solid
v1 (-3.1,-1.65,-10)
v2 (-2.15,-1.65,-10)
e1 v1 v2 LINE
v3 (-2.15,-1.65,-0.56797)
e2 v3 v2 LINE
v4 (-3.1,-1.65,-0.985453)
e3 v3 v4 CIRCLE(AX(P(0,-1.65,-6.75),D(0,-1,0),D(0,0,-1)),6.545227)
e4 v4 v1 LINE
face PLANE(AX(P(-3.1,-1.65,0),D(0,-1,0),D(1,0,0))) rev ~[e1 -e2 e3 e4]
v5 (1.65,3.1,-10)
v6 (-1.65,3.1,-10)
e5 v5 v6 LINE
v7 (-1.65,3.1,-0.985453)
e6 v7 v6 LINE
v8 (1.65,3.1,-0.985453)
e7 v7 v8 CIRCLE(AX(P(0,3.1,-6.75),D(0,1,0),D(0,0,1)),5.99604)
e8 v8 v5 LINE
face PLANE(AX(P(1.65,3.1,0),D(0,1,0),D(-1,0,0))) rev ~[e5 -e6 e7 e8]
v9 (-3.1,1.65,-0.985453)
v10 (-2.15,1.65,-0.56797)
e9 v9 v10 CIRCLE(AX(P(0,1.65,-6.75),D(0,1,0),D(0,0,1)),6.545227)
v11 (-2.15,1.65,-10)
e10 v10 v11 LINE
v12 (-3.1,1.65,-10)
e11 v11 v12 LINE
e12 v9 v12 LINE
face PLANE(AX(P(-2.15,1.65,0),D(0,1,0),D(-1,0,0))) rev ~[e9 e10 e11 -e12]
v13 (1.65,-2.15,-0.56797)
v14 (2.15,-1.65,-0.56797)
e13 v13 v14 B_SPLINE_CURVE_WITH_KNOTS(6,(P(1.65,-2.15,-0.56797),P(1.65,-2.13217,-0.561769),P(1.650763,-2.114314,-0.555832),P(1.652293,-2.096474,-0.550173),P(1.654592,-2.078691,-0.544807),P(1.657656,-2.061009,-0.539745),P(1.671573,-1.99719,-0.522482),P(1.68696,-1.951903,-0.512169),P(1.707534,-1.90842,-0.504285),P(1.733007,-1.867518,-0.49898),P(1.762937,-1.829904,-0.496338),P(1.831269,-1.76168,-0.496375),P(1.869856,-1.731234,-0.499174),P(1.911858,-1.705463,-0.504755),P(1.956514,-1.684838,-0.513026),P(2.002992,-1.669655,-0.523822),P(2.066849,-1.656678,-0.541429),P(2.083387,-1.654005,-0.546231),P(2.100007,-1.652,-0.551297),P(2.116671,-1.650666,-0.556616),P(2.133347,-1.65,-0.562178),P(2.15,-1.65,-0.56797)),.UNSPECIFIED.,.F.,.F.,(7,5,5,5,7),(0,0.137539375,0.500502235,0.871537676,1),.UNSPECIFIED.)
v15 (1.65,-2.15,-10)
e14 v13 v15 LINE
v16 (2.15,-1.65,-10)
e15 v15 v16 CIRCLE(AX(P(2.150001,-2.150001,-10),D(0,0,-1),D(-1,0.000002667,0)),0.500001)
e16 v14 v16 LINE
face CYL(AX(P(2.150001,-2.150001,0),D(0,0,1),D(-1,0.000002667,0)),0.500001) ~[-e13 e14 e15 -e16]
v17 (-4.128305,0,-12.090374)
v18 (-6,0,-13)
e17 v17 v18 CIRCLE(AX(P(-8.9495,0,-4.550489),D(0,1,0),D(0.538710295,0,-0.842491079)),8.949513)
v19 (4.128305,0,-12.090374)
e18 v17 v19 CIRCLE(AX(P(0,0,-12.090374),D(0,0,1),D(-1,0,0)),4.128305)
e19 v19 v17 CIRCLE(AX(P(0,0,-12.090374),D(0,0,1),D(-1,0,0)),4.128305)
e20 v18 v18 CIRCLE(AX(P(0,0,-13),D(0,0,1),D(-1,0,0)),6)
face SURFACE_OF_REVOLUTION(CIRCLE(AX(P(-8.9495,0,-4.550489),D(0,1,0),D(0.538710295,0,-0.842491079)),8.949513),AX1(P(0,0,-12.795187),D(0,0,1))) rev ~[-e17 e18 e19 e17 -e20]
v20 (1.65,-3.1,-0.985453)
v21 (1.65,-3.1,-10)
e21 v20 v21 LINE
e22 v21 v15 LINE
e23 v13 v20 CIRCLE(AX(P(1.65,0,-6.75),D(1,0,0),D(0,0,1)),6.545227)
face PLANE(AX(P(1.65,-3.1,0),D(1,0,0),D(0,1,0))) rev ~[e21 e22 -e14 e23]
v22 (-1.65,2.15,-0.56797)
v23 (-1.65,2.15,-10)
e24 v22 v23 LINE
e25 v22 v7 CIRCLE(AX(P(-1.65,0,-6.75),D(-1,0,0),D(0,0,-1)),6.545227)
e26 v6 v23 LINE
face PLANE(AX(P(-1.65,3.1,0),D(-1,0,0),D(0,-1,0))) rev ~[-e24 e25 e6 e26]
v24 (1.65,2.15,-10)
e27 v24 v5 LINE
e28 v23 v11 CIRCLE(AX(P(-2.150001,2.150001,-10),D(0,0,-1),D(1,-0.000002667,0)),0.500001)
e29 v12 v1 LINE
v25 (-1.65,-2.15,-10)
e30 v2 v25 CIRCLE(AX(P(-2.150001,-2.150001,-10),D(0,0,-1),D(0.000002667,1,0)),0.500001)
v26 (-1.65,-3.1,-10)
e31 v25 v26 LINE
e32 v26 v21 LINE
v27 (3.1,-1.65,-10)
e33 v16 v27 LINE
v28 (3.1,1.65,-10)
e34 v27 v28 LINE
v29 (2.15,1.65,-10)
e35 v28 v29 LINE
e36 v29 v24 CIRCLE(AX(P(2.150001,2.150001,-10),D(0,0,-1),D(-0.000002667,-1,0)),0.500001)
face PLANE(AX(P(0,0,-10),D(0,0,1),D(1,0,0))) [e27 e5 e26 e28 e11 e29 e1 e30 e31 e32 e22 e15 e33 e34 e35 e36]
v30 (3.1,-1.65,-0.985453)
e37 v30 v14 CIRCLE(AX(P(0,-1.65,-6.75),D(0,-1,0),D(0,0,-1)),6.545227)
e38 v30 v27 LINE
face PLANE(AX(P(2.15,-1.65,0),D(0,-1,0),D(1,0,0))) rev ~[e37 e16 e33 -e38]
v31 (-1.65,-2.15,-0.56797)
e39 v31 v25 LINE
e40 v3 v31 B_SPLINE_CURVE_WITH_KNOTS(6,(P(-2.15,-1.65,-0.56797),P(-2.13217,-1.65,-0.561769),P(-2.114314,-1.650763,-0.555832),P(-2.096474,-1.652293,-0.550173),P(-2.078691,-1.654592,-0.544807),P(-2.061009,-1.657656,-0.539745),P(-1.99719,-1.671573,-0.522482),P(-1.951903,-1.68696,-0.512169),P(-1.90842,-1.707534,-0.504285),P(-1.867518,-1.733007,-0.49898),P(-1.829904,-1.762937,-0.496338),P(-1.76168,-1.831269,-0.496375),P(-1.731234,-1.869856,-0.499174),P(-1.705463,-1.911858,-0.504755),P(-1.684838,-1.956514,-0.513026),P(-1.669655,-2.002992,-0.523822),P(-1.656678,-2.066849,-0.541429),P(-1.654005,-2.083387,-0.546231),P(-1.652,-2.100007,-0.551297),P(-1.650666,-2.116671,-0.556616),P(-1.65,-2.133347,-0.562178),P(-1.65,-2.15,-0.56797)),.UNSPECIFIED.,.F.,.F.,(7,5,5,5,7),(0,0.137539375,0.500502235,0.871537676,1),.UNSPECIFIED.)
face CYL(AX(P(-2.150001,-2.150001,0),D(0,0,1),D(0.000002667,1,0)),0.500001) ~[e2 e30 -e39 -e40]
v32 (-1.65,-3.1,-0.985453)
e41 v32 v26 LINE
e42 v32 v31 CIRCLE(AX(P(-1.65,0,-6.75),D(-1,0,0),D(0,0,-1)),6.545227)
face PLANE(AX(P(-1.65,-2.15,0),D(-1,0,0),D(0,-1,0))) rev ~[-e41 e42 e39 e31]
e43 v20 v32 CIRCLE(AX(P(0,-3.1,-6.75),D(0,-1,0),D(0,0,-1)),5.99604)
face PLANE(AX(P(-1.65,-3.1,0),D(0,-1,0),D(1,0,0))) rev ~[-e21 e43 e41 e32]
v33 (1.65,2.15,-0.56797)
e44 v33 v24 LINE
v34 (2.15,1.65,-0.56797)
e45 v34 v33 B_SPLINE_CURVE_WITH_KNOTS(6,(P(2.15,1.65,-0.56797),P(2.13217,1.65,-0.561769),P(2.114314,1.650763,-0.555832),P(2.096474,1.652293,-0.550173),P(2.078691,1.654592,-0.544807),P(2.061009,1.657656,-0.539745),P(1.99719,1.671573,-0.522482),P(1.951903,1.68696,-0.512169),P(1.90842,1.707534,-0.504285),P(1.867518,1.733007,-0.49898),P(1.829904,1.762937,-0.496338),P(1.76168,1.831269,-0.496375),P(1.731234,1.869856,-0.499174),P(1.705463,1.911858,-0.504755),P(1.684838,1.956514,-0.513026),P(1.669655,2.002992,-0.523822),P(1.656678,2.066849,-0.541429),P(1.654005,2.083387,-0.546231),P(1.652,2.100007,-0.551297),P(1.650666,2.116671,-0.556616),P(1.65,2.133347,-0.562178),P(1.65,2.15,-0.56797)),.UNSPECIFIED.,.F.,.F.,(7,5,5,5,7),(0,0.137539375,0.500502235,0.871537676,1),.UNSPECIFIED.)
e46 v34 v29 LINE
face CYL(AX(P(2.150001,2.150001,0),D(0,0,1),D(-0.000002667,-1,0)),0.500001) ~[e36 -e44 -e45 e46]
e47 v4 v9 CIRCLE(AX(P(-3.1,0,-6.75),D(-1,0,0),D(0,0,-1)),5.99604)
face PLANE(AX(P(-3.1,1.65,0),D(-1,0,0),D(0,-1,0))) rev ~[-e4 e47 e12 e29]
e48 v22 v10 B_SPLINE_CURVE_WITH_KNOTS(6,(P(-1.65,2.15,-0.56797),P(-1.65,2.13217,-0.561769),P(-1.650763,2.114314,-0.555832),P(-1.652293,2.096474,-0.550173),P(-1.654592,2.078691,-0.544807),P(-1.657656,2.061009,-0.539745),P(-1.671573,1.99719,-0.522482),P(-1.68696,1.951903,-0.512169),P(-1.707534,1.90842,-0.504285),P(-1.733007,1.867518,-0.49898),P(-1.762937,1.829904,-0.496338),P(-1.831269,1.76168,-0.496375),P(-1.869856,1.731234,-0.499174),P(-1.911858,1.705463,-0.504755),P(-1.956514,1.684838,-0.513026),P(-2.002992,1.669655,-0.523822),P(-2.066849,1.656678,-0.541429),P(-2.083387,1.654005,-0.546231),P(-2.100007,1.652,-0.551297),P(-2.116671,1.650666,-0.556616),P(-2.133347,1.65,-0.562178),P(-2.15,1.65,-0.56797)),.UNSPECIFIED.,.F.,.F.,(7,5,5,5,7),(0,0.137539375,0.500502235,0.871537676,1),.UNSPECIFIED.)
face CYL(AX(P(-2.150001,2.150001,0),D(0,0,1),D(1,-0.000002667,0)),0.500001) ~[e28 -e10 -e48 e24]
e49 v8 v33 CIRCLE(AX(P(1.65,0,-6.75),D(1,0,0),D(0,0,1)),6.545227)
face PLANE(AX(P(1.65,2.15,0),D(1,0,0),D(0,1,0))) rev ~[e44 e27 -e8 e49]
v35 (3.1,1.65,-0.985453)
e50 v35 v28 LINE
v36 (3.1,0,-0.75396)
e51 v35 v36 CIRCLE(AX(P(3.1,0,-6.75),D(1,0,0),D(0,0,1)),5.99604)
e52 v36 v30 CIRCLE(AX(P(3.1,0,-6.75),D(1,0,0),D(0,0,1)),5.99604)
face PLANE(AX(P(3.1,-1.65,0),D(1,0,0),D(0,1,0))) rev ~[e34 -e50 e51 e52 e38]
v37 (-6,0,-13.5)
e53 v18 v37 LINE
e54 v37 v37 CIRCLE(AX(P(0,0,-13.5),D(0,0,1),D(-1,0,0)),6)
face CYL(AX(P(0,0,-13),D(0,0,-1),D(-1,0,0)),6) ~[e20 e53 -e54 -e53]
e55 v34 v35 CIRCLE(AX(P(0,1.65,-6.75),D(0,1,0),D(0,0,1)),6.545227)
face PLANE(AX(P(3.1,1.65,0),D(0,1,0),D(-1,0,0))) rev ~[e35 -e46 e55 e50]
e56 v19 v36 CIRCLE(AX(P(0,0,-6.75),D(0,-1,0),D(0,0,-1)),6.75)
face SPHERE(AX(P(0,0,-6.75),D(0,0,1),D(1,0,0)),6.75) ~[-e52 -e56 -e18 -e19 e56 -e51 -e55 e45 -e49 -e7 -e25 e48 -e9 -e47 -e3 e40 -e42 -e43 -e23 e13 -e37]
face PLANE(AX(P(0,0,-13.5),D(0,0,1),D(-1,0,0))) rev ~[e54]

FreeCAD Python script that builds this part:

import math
import FreeCAD as App
import Part
import Sketcher
from FreeCAD import Vector
Q = App.Units.Quantity

doc = App.newDocument("Part")
params = doc.addObject("Spreadsheet::Sheet", "Params")
for row, (alias, value) in enumerate([
    ("sketch1_radius", "6.75 mm"),
    ("revolution_angle", "360 deg"),
    ("sketch2_radius", "0.500001 mm"),
    ("sketch2_width", "3.3 mm"),
    ("sketch2_width2", "0.95 mm"),
    ("pocket1_length", "10 mm"),
    ("sketch3_width", "6 mm"),
    ("sketch3_height", "0.5 mm"),
    ("revolution2_angle", "360 deg"),
], start=1):
    params.set(f"A{row}", alias)
    params.set(f"B{row}", "=" + value)
    params.setAlias(f"B{row}", alias)

body = doc.addObject("PartDesign::Body", "Body")

# Sketch on XZ plane
sketch1 = body.newObject("Sketcher::SketchObject", "Sketch")
sketch1.AttachmentSupport = (doc.getObject("XZ_Plane"), [""])
sketch1.MapMode = "FlatFace"
sketch1.addGeometry(Part.LineSegment(Vector(0, 0, 0), Vector(0, -13.5, 0)), False)
sketch1.addGeometry(Part.ArcOfCircle(Part.Circle(Vector(0, -6.75, 0), Vector(0, 0, 1), 6.75), math.radians(-90), math.radians(90)), False)
sketch1.addConstraint(Sketcher.Constraint("Coincident", 0, 1, 1, 2))
sketch1.addConstraint(Sketcher.Constraint("Coincident", 1, 1, 0, 2))
sketch1.addConstraint(Sketcher.Constraint("Vertical", 0))
sketch1.addConstraint(Sketcher.Constraint("Coincident", 0, 1, -1, 1))
sketch1.addConstraint(Sketcher.Constraint("PointOnObject", 1, 3, -2))
sketch1.addConstraint(Sketcher.Constraint("Radius", 1, Q("6.75 mm")))
sketch1.setExpression("Constraints[5]", "Params.sketch1_radius")
revolution = body.newObject("PartDesign::Revolution", "Revolution")
revolution.Profile = sketch1
revolution.ReferenceAxis = (sketch1, ["V_Axis"])
revolution.setExpression("Angle", "Params.revolution_angle")

# Sketch on XY plane
sketch2 = body.newObject("Sketcher::SketchObject", "Sketch001")
sketch2.AttachmentSupport = (doc.getObject("XY_Plane"), [""])
sketch2.MapMode = "FlatFace"
sketch2.addGeometry(Part.LineSegment(Vector(-3.1, 1.65, 0), Vector(-3.1, -1.65, 0)), False)
sketch2.addGeometry(Part.LineSegment(Vector(-3.1, -1.65, 0), Vector(-2.15, -1.65, 0)), False)
sketch2.addGeometry(Part.ArcOfCircle(Part.Circle(Vector(-2.150001, -2.150001, 0), Vector(0, 0, 1), 0.500001), math.radians(0.000153), math.radians(89.999847)), False)
sketch2.addGeometry(Part.LineSegment(Vector(-1.65, -2.15, 0), Vector(-1.65, -3.1, 0)), False)
sketch2.addGeometry(Part.LineSegment(Vector(-1.65, -3.1, 0), Vector(1.65, -3.1, 0)), False)
sketch2.addGeometry(Part.LineSegment(Vector(1.65, -3.1, 0), Vector(1.65, -2.15, 0)), False)
sketch2.addGeometry(Part.ArcOfCircle(Part.Circle(Vector(2.150001, -2.150001, 0), Vector(0, 0, 1), 0.500001), math.radians(90.000153), math.radians(179.999847)), False)
sketch2.addGeometry(Part.LineSegment(Vector(2.15, -1.65, 0), Vector(3.1, -1.65, 0)), False)
sketch2.addGeometry(Part.LineSegment(Vector(3.1, -1.65, 0), Vector(3.1, 1.65, 0)), False)
sketch2.addGeometry(Part.LineSegment(Vector(3.1, 1.65, 0), Vector(2.15, 1.65, 0)), False)
sketch2.addGeometry(Part.ArcOfCircle(Part.Circle(Vector(2.150001, 2.150001, 0), Vector(0, 0, 1), 0.500001), math.radians(-179.999847), math.radians(-90.000153)), False)
sketch2.addGeometry(Part.LineSegment(Vector(1.65, 2.15, 0), Vector(1.65, 3.1, 0)), False)
sketch2.addGeometry(Part.LineSegment(Vector(1.65, 3.1, 0), Vector(-1.65, 3.1, 0)), False)
sketch2.addGeometry(Part.LineSegment(Vector(-1.65, 3.1, 0), Vector(-1.65, 2.15, 0)), False)
sketch2.addGeometry(Part.ArcOfCircle(Part.Circle(Vector(-2.150001, 2.150001, 0), Vector(0, 0, 1), 0.500001), math.radians(-89.999847), math.radians(-0.000153)), False)
sketch2.addGeometry(Part.LineSegment(Vector(-2.15, 1.65, 0), Vector(-3.1, 1.65, 0)), False)
sketch2.addConstraint(Sketcher.Constraint("Coincident", 0, 2, 1, 1))
sketch2.addConstraint(Sketcher.Constraint("Coincident", 1, 2, 2, 2))
sketch2.addConstraint(Sketcher.Constraint("Coincident", 2, 1, 3, 1))
sketch2.addConstraint(Sketcher.Constraint("Coincident", 3, 2, 4, 1))
sketch2.addConstraint(Sketcher.Constraint("Coincident", 4, 2, 5, 1))
sketch2.addConstraint(Sketcher.Constraint("Coincident", 5, 2, 6, 2))
sketch2.addConstraint(Sketcher.Constraint("Coincident", 6, 1, 7, 1))
sketch2.addConstraint(Sketcher.Constraint("Coincident", 7, 2, 8, 1))
sketch2.addConstraint(Sketcher.Constraint("Coincident", 8, 2, 9, 1))
sketch2.addConstraint(Sketcher.Constraint("Coincident", 9, 2, 10, 2))
sketch2.addConstraint(Sketcher.Constraint("Coincident", 10, 1, 11, 1))
sketch2.addConstraint(Sketcher.Constraint("Coincident", 11, 2, 12, 1))
sketch2.addConstraint(Sketcher.Constraint("Coincident", 12, 2, 13, 1))
sketch2.addConstraint(Sketcher.Constraint("Coincident", 13, 2, 14, 2))
sketch2.addConstraint(Sketcher.Constraint("Coincident", 14, 1, 15, 1))
sketch2.addConstraint(Sketcher.Constraint("Coincident", 15, 2, 0, 1))
sketch2.addConstraint(Sketcher.Constraint("Vertical", 0))
sketch2.addConstraint(Sketcher.Constraint("Horizontal", 1))
sketch2.addConstraint(Sketcher.Constraint("Vertical", 3))
sketch2.addConstraint(Sketcher.Constraint("Horizontal", 4))
sketch2.addConstraint(Sketcher.Constraint("Vertical", 5))
sketch2.addConstraint(Sketcher.Constraint("Horizontal", 7))
sketch2.addConstraint(Sketcher.Constraint("Vertical", 8))
sketch2.addConstraint(Sketcher.Constraint("Horizontal", 9))
sketch2.addConstraint(Sketcher.Constraint("Vertical", 11))
sketch2.addConstraint(Sketcher.Constraint("Horizontal", 12))
sketch2.addConstraint(Sketcher.Constraint("Vertical", 13))
sketch2.addConstraint(Sketcher.Constraint("Horizontal", 15))
sketch2.addConstraint(Sketcher.Constraint("Equal", 2, 6))
sketch2.addConstraint(Sketcher.Constraint("Equal", 6, 10))
sketch2.addConstraint(Sketcher.Constraint("Equal", 10, 14))
sketch2.addConstraint(Sketcher.Constraint("Symmetric", 2, 3, 10, 3, -1, 1))
sketch2.addConstraint(Sketcher.Constraint("Symmetric", 6, 3, 14, 3, -1, 1))
sketch2.addConstraint(Sketcher.Constraint("Symmetric", 2, 3, 6, 3, -2))
sketch2.addConstraint(Sketcher.Constraint("Horizontal", 6, 3, 2, 1))
sketch2.addConstraint(Sketcher.Constraint("Horizontal", 2, 1, 5, 2))
sketch2.addConstraint(Sketcher.Constraint("Horizontal", 14, 3, 10, 1))
sketch2.addConstraint(Sketcher.Constraint("Horizontal", 10, 1, 13, 2))
sketch2.addConstraint(Sketcher.Constraint("Vertical", 14, 3, 1, 2))
sketch2.addConstraint(Sketcher.Constraint("Vertical", 10, 3, 6, 1))
sketch2.addConstraint(Sketcher.Constraint("Vertical", 6, 1, 9, 2))
sketch2.addConstraint(Sketcher.Constraint("Vertical", 1, 2, 14, 1))
sketch2.addConstraint(Sketcher.Constraint("Equal", 1, 7))
sketch2.addConstraint(Sketcher.Constraint("Equal", 12, 0))
sketch2.addConstraint(Sketcher.Constraint("Equal", 15, 3))
sketch2.addConstraint(Sketcher.Constraint("Equal", 5, 11))
sketch2.addConstraint(Sketcher.Constraint("Radius", 2, Q("0.500001 mm")))
sketch2.addConstraint(Sketcher.Constraint("DistanceX", 4, 1, 4, 2, Q("3.3 mm")))
sketch2.addConstraint(Sketcher.Constraint("DistanceX", 1, 1, 1, 2, Q("0.95 mm")))
sketch2.setExpression("Constraints[46]", "Params.sketch2_radius")
sketch2.setExpression("Constraints[47]", "Params.sketch2_width")
sketch2.setExpression("Constraints[48]", "Params.sketch2_width2")
pocket1 = body.newObject("PartDesign::Pocket", "Pocket")
pocket1.Profile = sketch2
pocket1.setExpression("Length", "Params.pocket1_length")

# Sketch on XZ plane
sketch3 = body.newObject("Sketcher::SketchObject", "Sketch002")
sketch3.AttachmentSupport = (doc.getObject("XZ_Plane"), [""])
sketch3.MapMode = "FlatFace"
sketch3.addGeometry(Part.LineSegment(Vector(-6, -13, 0), Vector(-6, -13.5, 0)), False)
sketch3.addGeometry(Part.LineSegment(Vector(-6, -13.5, 0), Vector(0, -13.5, 0)), False)
sketch3.addGeometry(Part.LineSegment(Vector(0, -13.5, 0), Vector(0, -12.090374, 0)), False)
sketch3.addGeometry(Part.LineSegment(Vector(0, -12.090374, 0), Vector(-4.128305, -12.090374, 0)), False)
sketch3.addGeometry(Part.ArcOfCircle(Part.Circle(Vector(-8.9495, -4.550489, 0), Vector(0, 0, 1), 8.949513), math.radians(-70.757262), math.radians(-57.404114)), False)
sketch3.addConstraint(Sketcher.Constraint("Coincident", 0, 2, 1, 1))
sketch3.addConstraint(Sketcher.Constraint("Coincident", 1, 2, 2, 1))
sketch3.addConstraint(Sketcher.Constraint("Coincident", 2, 2, 3, 1))
sketch3.addConstraint(Sketcher.Constraint("Coincident", 3, 2, 4, 2))
sketch3.addConstraint(Sketcher.Constraint("Coincident", 4, 1, 0, 1))
sketch3.addConstraint(Sketcher.Constraint("Vertical", 0))
sketch3.addConstraint(Sketcher.Constraint("Horizontal", 1))
sketch3.addConstraint(Sketcher.Constraint("Vertical", 2))
sketch3.addConstraint(Sketcher.Constraint("Horizontal", 3))
sketch3.addConstraint(Sketcher.Constraint("PointOnObject", 1, 2, -2))
sketch3.addConstraint(Sketcher.Constraint("DistanceX", 1, 1, 1, 2, Q("6 mm")))
sketch3.addConstraint(Sketcher.Constraint("DistanceY", 0, 2, 0, 1, Q("0.5 mm")))
sketch3.addConstraint(Sketcher.Constraint("DistanceY", 4, 1, -1, 1, Q("13 mm")))
sketch3.addConstraint(Sketcher.Constraint("Radius", 4, Q("8.949513 mm")))
sketch3.addConstraint(Sketcher.Constraint("DistanceX", 4, 3, -1, 1, Q("8.9495 mm")))
sketch3.addConstraint(Sketcher.Constraint("DistanceX", 3, 2, 3, 1, Q("4.128305 mm")))
sketch3.setExpression("Constraints[10]", "Params.sketch3_width")
sketch3.setExpression("Constraints[11]", "Params.sketch3_height")
revolution2 = body.newObject("PartDesign::Revolution", "Revolution001")
revolution2.Profile = sketch3
revolution2.ReferenceAxis = (sketch3, ["V_Axis"])
revolution2.setExpression("Angle", "Params.revolution2_angle")

doc.recompute()
